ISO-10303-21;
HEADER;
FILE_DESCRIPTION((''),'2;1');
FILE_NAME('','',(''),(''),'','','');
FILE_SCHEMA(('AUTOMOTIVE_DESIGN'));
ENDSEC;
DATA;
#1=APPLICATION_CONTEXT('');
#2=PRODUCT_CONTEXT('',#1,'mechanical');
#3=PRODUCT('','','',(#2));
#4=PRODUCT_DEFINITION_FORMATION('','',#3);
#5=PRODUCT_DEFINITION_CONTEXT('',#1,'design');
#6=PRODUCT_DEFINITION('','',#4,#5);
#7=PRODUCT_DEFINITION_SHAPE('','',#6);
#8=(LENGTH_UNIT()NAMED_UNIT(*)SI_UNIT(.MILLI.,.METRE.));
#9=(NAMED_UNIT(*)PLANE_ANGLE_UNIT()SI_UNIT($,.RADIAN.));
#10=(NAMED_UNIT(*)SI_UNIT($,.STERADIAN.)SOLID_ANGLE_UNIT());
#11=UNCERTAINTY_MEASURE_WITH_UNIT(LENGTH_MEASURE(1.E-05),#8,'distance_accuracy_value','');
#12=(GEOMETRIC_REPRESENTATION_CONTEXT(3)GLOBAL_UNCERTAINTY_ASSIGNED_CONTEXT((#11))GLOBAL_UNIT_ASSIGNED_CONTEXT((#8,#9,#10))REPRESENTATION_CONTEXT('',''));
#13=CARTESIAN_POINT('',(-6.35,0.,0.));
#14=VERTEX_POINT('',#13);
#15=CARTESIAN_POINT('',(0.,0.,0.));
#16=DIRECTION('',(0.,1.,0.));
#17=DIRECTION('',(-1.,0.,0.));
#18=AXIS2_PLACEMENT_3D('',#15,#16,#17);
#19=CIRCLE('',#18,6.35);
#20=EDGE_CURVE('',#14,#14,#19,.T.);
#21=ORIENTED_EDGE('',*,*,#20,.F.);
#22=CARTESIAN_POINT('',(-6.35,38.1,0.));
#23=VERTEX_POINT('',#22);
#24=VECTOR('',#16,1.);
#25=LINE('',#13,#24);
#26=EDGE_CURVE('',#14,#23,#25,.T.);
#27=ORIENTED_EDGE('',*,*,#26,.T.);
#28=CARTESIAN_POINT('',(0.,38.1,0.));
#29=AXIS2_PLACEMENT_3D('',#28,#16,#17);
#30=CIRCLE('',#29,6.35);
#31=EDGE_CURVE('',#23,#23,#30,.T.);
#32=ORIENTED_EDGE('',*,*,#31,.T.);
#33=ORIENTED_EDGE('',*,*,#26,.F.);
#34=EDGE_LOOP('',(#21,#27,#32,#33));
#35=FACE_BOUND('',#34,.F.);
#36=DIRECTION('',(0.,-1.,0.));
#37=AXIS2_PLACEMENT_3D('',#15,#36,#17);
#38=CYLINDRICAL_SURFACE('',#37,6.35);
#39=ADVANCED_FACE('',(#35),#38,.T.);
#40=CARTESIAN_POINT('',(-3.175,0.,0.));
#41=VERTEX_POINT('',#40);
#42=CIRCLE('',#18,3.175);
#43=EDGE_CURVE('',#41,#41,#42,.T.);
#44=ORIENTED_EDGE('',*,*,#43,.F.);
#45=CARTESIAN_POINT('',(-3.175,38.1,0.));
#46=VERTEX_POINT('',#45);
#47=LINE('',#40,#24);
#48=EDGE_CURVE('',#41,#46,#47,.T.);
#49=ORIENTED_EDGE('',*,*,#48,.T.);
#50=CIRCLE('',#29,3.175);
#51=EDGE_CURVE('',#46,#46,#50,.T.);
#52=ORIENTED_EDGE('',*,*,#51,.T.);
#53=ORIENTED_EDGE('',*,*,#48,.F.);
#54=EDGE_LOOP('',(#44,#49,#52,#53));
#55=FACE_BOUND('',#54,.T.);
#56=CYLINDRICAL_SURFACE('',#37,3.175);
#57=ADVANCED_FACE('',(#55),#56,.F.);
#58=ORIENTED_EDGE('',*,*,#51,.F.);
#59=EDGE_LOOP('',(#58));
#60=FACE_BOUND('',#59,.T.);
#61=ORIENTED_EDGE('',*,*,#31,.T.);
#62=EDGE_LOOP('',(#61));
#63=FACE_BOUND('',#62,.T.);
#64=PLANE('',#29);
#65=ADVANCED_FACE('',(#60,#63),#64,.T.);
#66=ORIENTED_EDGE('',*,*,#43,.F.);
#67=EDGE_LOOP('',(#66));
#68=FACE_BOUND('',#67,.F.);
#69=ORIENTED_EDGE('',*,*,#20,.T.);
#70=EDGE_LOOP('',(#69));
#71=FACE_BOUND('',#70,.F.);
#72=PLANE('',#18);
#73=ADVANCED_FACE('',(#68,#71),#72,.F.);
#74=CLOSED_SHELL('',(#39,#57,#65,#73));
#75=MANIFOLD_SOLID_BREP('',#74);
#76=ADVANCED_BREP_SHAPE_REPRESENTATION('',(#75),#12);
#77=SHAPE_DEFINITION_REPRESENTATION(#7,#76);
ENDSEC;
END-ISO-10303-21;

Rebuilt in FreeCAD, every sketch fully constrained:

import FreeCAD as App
import Part
import Sketcher
Q = App.Units.Quantity

doc = App.newDocument("Part")
body = doc.addObject("PartDesign::Body", "Body")

# Sketch on XZ plane
sketch1 = body.newObject("Sketcher::SketchObject", "Sketch")
sketch1.AttachmentSupport = (doc.getObject("XZ_Plane"), [""])
sketch1.MapMode = "FlatFace"
sketch1.addGeometry([
    Part.Circle(App.Vector(0, 0, 0), App.Vector(0, 0, 1), 6.3),
    Part.Circle(App.Vector(0, 0, 0), App.Vector(0, 0, 1), 3.2),
], False)
sketch1.addConstraint([
    Sketcher.Constraint("Coincident", 0, 3, -1, 1),
    Sketcher.Constraint("Coincident", 1, 3, -1, 1),
    Sketcher.Constraint("Diameter", 0, Q("0.5 in")),
    Sketcher.Constraint("Diameter", 1, Q("0.25 in")),
])
pad1 = body.newObject("PartDesign::Pad", "Pad")
pad1.Profile = sketch1
pad1.Length = Q("1.5 in")
pad1.Reversed = True

doc.recompute()
